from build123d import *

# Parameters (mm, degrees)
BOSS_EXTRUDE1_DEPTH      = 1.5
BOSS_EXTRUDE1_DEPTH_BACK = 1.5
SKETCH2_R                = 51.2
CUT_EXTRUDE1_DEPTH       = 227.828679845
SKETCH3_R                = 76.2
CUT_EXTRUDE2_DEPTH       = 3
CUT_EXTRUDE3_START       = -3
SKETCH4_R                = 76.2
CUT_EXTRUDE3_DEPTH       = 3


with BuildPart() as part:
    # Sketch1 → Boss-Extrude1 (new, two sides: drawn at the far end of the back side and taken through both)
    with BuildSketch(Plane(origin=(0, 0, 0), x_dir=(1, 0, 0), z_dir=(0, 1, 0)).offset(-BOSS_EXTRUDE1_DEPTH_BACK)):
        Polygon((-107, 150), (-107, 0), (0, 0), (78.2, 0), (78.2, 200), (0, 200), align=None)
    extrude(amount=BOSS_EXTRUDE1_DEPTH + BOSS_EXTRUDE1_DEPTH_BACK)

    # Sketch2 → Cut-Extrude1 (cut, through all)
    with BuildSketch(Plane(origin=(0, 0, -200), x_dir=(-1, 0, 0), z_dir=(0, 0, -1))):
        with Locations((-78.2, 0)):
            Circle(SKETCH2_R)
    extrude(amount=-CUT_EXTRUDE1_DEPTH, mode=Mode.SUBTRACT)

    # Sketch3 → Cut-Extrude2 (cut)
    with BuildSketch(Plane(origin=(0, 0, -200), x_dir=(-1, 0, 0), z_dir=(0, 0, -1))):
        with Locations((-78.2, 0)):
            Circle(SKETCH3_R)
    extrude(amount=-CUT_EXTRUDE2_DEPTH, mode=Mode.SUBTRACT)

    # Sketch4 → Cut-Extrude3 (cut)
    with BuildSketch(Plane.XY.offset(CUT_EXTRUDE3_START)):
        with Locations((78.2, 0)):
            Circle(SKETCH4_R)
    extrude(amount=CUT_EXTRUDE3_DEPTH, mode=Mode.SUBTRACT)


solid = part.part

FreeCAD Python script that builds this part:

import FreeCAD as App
import Part
import Sketcher
from FreeCAD import Vector
Q = App.Units.Quantity


def add_polygon(sketch, points):
    """Adds a closed chain of lines whose ends are joined by coincident constraints."""
    first, n = sketch.GeometryCount, len(points)
    for a, b in zip(points, points[1:] + points[:1]):
        sketch.addGeometry(Part.LineSegment(App.Vector(*a, 0), App.Vector(*b, 0)), False)
    for i in range(n):
        sketch.addConstraint(Sketcher.Constraint("Coincident", first + i, 2, first + (i + 1) % n, 1))

doc = App.newDocument("Part")
body = doc.addObject("PartDesign::Body", "Body")

sketch1 = body.newObject("Sketcher::SketchObject", "Sketch")
sketch1.AttachmentSupport = (doc.getObject("XZ_Plane"), [""])
sketch1.MapMode = "FlatFace"
add_polygon(sketch1, [(-107, -150), (-107, 0), (78, 0), (78, -200), (0, -200)])
sketch1.addConstraint(Sketcher.Constraint("Vertical", 0))
sketch1.addConstraint(Sketcher.Constraint("Horizontal", 1))
sketch1.addConstraint(Sketcher.Constraint("Vertical", 2))
sketch1.addConstraint(Sketcher.Constraint("Horizontal", 3))
sketch1.addConstraint(Sketcher.Constraint("PointOnObject", 0, 2, -1))
sketch1.addConstraint(Sketcher.Constraint("PointOnObject", 3, 2, -2))
sketch1.addConstraint(Sketcher.Constraint("DistanceY", 0, 1, 0, 2, Q("150 mm")))
sketch1.addConstraint(Sketcher.Constraint("DistanceY", 2, 2, 2, 1, Q("200 mm")))
sketch1.addConstraint(Sketcher.Constraint("DistanceX", 1, 1, 1, 2, Q("185.2 mm")))
sketch1.addConstraint(Sketcher.Constraint("DistanceX", 3, 2, 3, 1, Q("78.2 mm")))
pad1 = body.newObject("PartDesign::Pad", "Pad")
pad1.Profile = sketch1
pad1.Type = "TwoLengths"
pad1.Length = 1.5
pad1.Length2 = 1.5
pad1.Reversed = True

sketch2 = body.newObject("Sketcher::SketchObject", "Sketch001")
sketch2.AttachmentSupport = (doc.getObject("XY_Plane"), [""])
sketch2.MapMode = "FlatFace"
sketch2.AttachmentOffset = App.Placement(Vector(0, 0, -200), App.Rotation())
sketch2.addGeometry(Part.Circle(Vector(78, 0, 0), Vector(0, 0, 1), 51), False)
sketch2.addConstraint(Sketcher.Constraint("PointOnObject", 0, 3, -1))
sketch2.addConstraint(Sketcher.Constraint("Diameter", 0, Q("102.4 mm")))
sketch2.addConstraint(Sketcher.Constraint("DistanceX", -1, 1, 0, 3, Q("78.2 mm")))
pocket1 = body.newObject("PartDesign::Pocket", "Pocket")
pocket1.Profile = sketch2
pocket1.Type = "ThroughAll"
pocket1.Reversed = True

sketch3 = body.newObject("Sketcher::SketchObject", "Sketch002")
sketch3.AttachmentSupport = (doc.getObject("XY_Plane"), [""])
sketch3.MapMode = "FlatFace"
sketch3.AttachmentOffset = App.Placement(Vector(0, 0, -200), App.Rotation())
sketch3.addGeometry(Part.Circle(Vector(78, 0, 0), Vector(0, 0, 1), 76), False)
sketch3.addConstraint(Sketcher.Constraint("PointOnObject", 0, 3, -1))
sketch3.addConstraint(Sketcher.Constraint("Diameter", 0, Q("152.4 mm")))
sketch3.addConstraint(Sketcher.Constraint("DistanceX", -1, 1, 0, 3, Q("78.2 mm")))
pocket2 = body.newObject("PartDesign::Pocket", "Pocket001")
pocket2.Profile = sketch3
pocket2.Length = 3
pocket2.Reversed = True

sketch4 = body.newObject("Sketcher::SketchObject", "Sketch003")
sketch4.AttachmentSupport = (doc.getObject("XY_Plane"), [""])
sketch4.MapMode = "FlatFace"
sketch4.AttachmentOffset = App.Placement(Vector(0, 0, -3), App.Rotation())
sketch4.addGeometry(Part.Circle(Vector(78, 0, 0), Vector(0, 0, 1), 76), False)
sketch4.addConstraint(Sketcher.Constraint("PointOnObject", 0, 3, -1))
sketch4.addConstraint(Sketcher.Constraint("Diameter", 0, Q("152.4 mm")))
sketch4.addConstraint(Sketcher.Constraint("DistanceX", -1, 1, 0, 3, Q("78.2 mm")))
pocket3 = body.newObject("PartDesign::Pocket", "Pocket002")
pocket3.Profile = sketch4
pocket3.Length = 3
pocket3.Reversed = True

doc.recompute()
